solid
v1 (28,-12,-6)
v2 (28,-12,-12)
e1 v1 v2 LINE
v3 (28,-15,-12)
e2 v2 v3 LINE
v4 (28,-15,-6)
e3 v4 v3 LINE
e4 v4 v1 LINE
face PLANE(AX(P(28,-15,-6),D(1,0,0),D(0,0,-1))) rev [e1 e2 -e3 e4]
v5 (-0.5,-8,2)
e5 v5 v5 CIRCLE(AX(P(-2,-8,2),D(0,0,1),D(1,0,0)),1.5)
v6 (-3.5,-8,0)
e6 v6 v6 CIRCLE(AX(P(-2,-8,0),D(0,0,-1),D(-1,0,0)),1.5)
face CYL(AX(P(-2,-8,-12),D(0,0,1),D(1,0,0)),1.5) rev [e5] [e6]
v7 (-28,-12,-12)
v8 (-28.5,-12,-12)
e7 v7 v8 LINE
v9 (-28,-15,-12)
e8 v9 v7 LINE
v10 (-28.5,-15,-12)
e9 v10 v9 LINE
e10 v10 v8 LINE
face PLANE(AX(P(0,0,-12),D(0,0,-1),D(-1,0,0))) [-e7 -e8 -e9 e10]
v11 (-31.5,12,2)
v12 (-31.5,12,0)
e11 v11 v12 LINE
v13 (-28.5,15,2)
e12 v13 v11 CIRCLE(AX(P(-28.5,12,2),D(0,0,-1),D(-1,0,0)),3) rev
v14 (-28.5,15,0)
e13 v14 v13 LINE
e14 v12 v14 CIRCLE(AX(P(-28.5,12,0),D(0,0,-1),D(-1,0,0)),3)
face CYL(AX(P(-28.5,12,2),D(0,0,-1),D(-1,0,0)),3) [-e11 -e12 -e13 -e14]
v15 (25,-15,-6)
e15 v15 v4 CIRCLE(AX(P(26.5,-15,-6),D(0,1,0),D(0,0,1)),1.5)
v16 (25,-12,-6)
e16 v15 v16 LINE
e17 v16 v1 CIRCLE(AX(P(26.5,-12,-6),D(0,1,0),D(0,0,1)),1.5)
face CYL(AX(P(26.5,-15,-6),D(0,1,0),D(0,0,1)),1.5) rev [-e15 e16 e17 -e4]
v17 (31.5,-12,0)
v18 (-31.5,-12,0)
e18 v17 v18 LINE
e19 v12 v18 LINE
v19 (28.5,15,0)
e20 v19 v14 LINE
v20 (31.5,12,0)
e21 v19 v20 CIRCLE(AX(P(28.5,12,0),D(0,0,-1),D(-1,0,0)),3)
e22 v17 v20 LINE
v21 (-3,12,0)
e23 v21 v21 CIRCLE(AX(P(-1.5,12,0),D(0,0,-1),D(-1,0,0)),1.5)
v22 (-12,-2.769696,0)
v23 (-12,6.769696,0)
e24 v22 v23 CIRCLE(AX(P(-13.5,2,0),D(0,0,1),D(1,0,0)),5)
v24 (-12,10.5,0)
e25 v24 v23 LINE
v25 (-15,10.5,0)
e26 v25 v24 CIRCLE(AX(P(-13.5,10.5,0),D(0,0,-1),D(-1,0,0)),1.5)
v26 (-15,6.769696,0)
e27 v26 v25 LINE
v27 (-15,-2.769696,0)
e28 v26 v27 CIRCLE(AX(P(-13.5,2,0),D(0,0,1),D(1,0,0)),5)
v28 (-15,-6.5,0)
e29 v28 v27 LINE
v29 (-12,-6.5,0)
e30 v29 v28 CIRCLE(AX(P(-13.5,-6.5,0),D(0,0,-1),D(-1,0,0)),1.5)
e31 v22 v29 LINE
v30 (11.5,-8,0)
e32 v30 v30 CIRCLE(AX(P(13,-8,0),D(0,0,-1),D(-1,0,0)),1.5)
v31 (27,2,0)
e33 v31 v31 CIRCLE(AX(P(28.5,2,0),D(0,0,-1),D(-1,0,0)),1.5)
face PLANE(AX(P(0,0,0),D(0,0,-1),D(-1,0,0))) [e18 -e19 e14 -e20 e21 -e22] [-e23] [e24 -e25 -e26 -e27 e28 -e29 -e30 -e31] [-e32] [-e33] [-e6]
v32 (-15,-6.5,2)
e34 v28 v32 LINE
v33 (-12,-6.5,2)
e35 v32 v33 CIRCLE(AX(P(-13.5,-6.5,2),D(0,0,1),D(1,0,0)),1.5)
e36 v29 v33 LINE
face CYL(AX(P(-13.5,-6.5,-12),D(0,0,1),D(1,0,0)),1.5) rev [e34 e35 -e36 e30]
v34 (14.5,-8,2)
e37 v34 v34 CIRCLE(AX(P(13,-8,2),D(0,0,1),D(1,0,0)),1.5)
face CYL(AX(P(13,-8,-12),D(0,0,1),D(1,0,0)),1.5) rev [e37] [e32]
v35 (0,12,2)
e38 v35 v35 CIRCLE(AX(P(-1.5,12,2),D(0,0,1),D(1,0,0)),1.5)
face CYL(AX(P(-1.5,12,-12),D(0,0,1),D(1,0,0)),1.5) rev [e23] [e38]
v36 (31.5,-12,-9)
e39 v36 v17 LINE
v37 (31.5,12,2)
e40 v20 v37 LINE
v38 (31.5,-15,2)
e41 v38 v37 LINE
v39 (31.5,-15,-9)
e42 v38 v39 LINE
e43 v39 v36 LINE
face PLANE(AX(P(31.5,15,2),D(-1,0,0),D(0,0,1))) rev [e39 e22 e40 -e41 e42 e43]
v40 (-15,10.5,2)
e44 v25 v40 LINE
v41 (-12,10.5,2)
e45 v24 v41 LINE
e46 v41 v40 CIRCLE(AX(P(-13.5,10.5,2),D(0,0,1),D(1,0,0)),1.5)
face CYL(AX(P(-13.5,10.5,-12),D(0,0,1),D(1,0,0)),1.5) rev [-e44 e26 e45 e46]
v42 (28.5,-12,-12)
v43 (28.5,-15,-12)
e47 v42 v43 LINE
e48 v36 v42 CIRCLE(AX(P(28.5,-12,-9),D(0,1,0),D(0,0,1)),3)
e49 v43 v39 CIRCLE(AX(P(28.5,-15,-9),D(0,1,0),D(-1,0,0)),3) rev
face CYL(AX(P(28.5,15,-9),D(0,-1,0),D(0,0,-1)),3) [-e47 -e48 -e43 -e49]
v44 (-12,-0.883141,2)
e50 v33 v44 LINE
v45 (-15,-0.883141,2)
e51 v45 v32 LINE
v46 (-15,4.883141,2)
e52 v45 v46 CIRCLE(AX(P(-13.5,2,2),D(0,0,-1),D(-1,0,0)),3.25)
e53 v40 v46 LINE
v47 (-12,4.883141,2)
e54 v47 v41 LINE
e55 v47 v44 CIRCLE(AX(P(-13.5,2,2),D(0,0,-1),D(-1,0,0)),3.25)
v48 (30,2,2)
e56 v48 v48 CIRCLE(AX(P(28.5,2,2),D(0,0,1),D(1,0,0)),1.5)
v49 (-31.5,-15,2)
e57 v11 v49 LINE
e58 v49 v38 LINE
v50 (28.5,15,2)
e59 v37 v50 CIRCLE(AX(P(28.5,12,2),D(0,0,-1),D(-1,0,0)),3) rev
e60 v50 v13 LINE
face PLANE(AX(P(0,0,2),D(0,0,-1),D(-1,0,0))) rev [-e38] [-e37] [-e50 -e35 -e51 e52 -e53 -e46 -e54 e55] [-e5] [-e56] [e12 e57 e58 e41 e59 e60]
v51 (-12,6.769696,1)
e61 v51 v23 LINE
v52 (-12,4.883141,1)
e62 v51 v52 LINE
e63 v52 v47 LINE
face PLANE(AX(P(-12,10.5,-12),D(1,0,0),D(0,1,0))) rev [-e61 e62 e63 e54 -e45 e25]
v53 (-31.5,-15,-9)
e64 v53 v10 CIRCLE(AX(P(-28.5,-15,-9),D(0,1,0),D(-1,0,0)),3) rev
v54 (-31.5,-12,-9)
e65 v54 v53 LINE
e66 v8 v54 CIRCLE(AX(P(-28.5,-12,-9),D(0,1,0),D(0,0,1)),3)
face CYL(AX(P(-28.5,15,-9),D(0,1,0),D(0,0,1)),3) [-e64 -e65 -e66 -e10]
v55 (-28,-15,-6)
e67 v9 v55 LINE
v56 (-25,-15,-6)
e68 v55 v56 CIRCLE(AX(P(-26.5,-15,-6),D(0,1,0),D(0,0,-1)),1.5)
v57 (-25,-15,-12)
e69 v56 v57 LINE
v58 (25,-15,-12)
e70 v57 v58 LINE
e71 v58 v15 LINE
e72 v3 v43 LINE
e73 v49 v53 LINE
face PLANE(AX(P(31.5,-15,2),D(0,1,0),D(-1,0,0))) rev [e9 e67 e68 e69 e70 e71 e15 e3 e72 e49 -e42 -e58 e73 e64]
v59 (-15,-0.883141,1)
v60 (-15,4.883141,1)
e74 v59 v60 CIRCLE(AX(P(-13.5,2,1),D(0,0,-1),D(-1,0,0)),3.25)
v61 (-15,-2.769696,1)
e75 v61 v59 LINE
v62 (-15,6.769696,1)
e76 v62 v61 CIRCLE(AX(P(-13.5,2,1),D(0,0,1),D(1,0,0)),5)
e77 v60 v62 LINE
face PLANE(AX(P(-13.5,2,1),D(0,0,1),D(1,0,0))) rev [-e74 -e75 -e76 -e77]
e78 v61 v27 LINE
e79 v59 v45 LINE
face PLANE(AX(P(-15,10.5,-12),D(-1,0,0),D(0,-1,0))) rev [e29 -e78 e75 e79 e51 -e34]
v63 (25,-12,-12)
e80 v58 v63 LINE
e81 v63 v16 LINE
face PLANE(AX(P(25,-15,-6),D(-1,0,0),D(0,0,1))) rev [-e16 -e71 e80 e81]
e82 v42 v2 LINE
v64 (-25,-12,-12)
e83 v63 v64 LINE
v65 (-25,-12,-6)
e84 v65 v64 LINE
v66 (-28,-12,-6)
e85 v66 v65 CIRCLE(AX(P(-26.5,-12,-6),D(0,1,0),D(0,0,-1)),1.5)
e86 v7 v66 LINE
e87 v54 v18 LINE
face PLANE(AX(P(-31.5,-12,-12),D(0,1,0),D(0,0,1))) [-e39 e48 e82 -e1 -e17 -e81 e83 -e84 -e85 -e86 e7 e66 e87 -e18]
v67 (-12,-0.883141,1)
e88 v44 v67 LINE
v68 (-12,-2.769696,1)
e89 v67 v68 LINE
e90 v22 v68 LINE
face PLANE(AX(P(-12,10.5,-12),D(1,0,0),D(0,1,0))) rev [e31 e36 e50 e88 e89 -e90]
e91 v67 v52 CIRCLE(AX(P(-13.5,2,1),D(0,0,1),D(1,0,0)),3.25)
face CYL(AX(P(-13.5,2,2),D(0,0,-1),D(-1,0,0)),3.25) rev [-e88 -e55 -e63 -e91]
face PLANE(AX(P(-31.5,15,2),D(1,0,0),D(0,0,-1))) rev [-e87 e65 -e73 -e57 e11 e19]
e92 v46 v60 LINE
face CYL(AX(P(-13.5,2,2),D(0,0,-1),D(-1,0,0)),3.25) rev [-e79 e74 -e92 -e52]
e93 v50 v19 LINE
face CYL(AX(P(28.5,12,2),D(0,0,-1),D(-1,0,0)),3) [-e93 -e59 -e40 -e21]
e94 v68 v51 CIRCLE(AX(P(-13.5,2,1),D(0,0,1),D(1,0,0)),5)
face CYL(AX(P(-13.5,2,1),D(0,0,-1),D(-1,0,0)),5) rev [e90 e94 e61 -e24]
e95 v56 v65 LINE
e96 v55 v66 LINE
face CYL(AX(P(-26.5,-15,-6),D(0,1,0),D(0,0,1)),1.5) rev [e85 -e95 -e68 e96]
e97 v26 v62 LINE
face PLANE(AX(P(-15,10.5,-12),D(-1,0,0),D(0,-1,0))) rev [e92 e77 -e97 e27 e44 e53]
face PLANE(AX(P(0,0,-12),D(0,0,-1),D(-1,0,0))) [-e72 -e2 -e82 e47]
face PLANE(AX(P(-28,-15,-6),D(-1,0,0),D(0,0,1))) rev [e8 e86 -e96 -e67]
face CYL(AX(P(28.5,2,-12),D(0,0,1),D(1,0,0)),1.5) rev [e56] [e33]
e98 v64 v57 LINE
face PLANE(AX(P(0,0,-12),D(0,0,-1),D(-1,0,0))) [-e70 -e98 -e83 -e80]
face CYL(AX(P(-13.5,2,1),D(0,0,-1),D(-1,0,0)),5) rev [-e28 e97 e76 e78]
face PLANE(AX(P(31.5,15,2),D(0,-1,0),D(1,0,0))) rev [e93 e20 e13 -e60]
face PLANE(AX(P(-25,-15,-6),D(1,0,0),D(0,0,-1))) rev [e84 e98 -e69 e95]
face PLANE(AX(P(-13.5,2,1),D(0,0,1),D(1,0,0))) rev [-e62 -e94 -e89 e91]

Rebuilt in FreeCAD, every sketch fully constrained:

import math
import FreeCAD as App
import Part
import Sketcher

V = App.Vector
Q = App.Units.Quantity


def edges_at(feature, points):
    """Names of the edges that pass closest to the given points."""
    edges = feature.Shape.Edges
    near = lambda p: min(range(len(edges)), key=lambda i: edges[i].distToShape(Part.Vertex(*p))[0])
    return sorted({f"Edge{near(p) + 1}" for p in points})

doc = App.newDocument("Part")
body = doc.addObject("PartDesign::Body", "Body")

sketch1 = body.newObject("Sketcher::SketchObject", "Sketch")
sketch1.AttachmentSupport = (doc.getObject("XY_Plane"), [""])
sketch1.MapMode = "FlatFace"
sketch1.addGeometry([
    Part.LineSegment(V(-32, 15, 0), V(-32, -15, 0)),
    Part.LineSegment(V(-32, -15, 0), V(32, -15, 0)),
    Part.LineSegment(V(32, -15, 0), V(32, 15, 0)),
    Part.LineSegment(V(32, 15, 0), V(-32, 15, 0)),
], False)
sketch1.addConstraint([
    Sketcher.Constraint("Coincident", 0, 2, 1, 1),
    Sketcher.Constraint("Coincident", 1, 2, 2, 1),
    Sketcher.Constraint("Coincident", 2, 2, 3, 1),
    Sketcher.Constraint("Coincident", 3, 2, 0, 1),
    Sketcher.Constraint("Vertical", 0),
    Sketcher.Constraint("Horizontal", 1),
    Sketcher.Constraint("Vertical", 2),
    Sketcher.Constraint("Horizontal", 3),
    Sketcher.Constraint("Symmetric", 0, 2, 2, 2, -1, 1),
    Sketcher.Constraint("DistanceX", 1, 1, 1, 2, Q("63 mm")),
    Sketcher.Constraint("DistanceY", 0, 2, 0, 1, Q("30 mm")),
])
pad1 = body.newObject("PartDesign::Pad", "Pad")
pad1.Profile = sketch1
pad1.Length = 2

sketch2 = body.newObject("Sketcher::SketchObject", "Sketch001")
sketch2.AttachmentSupport = (doc.getObject("XY_Plane"), [""])
sketch2.MapMode = "FlatFace"
sketch2.addGeometry([
    Part.LineSegment(V(-31.5, -12, 0), V(-31.5, -15, 0)),
    Part.LineSegment(V(-31.5, -15, 0), V(31.5, -15, 0)),
    Part.LineSegment(V(31.5, -15, 0), V(31.5, -12, 0)),
    Part.LineSegment(V(31.5, -12, 0), V(-31.5, -12, 0)),
], False)
sketch2.addConstraint([
    Sketcher.Constraint("Coincident", 0, 2, 1, 1),
    Sketcher.Constraint("Coincident", 1, 2, 2, 1),
    Sketcher.Constraint("Coincident", 2, 2, 3, 1),
    Sketcher.Constraint("Coincident", 3, 2, 0, 1),
    Sketcher.Constraint("Vertical", 0),
    Sketcher.Constraint("Horizontal", 1),
    Sketcher.Constraint("Vertical", 2),
    Sketcher.Constraint("Horizontal", 3),
    Sketcher.Constraint("DistanceX", 1, 1, 1, 2, Q("63 mm")),
    Sketcher.Constraint("DistanceY", 0, 2, 0, 1, Q("3 mm")),
    Sketcher.Constraint("DistanceY", 0, 2, -1, 1, Q("15 mm")),
    Sketcher.Constraint("DistanceX", 0, 2, -1, 1, Q("31.5 mm")),
])
pad2 = body.newObject("PartDesign::Pad", "Pad001")
pad2.Profile = sketch2
pad2.Length = 12
pad2.Reversed = True

sketch3 = body.newObject("Sketcher::SketchObject", "Sketch002")
sketch3.AttachmentSupport = (doc.getObject("XZ_Plane"), [""])
sketch3.MapMode = "FlatFace"
sketch3.AttachmentOffset = App.Placement(V(0, 0, 12), App.Rotation())
sketch3.addGeometry([
    Part.LineSegment(V(25, -18, 0), V(25, -6, 0)),
    Part.ArcOfCircle(Part.Circle(V(26.5, -6, 0), V(0, 0, 1), 1.5), math.radians(0), math.radians(180)),
    Part.LineSegment(V(28, -6, 0), V(28, -18, 0)),
    Part.ArcOfCircle(Part.Circle(V(26.5, -18, 0), V(0, 0, 1), 1.5), math.radians(180), math.radians(360)),
    Part.LineSegment(V(-25, -6, 0), V(-25, -18, 0)),
    Part.ArcOfCircle(Part.Circle(V(-26.5, -18, 0), V(0, 0, 1), 1.5), math.radians(180), math.radians(360)),
    Part.LineSegment(V(-28, -18, 0), V(-28, -6, 0)),
    Part.ArcOfCircle(Part.Circle(V(-26.5, -6, 0), V(0, 0, 1), 1.5), math.radians(0), math.radians(180)),
], False)
sketch3.addConstraint([
    Sketcher.Constraint("Tangent", 0, 2, 1, 2),
    Sketcher.Constraint("Tangent", 1, 1, 2, 1),
    Sketcher.Constraint("Tangent", 2, 2, 3, 2),
    Sketcher.Constraint("Tangent", 3, 1, 0, 1),
    Sketcher.Constraint("Tangent", 4, 2, 5, 2),
    Sketcher.Constraint("Tangent", 5, 1, 6, 1),
    Sketcher.Constraint("Tangent", 6, 2, 7, 2),
    Sketcher.Constraint("Tangent", 7, 1, 4, 1),
    Sketcher.Constraint("Vertical", 0),
    Sketcher.Constraint("Vertical", 2),
    Sketcher.Constraint("Vertical", 4),
    Sketcher.Constraint("Vertical", 6),
    Sketcher.Constraint("Equal", 3, 5),
    Sketcher.Constraint("Symmetric", 3, 3, 5, 3, -2),
    Sketcher.Constraint("Horizontal", 1, 3, 7, 3),
    Sketcher.Constraint("Radius", 1, Q("1.5 mm")),
    Sketcher.Constraint("DistanceY", 0, 1, 0, 2, Q("12 mm")),
    Sketcher.Constraint("DistanceY", 1, 3, -1, 1, Q("6 mm")),
    Sketcher.Constraint("DistanceX", -1, 1, 0, 2, Q("25 mm")),
])
pocket1 = body.newObject("PartDesign::Pocket", "Pocket")
pocket1.Profile = sketch3
pocket1.Type = "ThroughAll"
pocket1.Reversed = True
doc.recompute()

fillet = body.newObject("PartDesign::Fillet", "Fillet")
fillet.Base = (pocket1, edges_at(pocket1, [
    (-31.5, -13.5, -12),
    (31.5, -13.5, -12),
    (-31.5, 15, 1),
    (31.5, 15, 1),
]))
fillet.Radius = 3

sketch4 = body.newObject("Sketcher::SketchObject", "Sketch003")
sketch4.AttachmentSupport = (doc.getObject("XY_Plane"), [""])
sketch4.MapMode = "FlatFace"
sketch4.AttachmentOffset = App.Placement(V(0, 0, 2), App.Rotation())
sketch4.addGeometry([
    Part.LineSegment(V(-12, -6.5, 0), V(-12, 10.5, 0)),
    Part.ArcOfCircle(Part.Circle(V(-13.5, 10.5, 0), V(0, 0, 1), 1.5), math.radians(0), math.radians(180)),
    Part.LineSegment(V(-15, 10.5, 0), V(-15, -6.5, 0)),
    Part.ArcOfCircle(Part.Circle(V(-13.5, -6.5, 0), V(0, 0, 1), 1.5), math.radians(180), math.radians(360)),
], False)
sketch4.addConstraint([
    Sketcher.Constraint("Tangent", 0, 2, 1, 1),
    Sketcher.Constraint("Tangent", 1, 2, 2, 1),
    Sketcher.Constraint("Tangent", 2, 2, 3, 1),
    Sketcher.Constraint("Tangent", 3, 2, 0, 1),
    Sketcher.Constraint("Vertical", 0),
    Sketcher.Constraint("Vertical", 2),
    Sketcher.Constraint("Radius", 1, Q("1.5 mm")),
    Sketcher.Constraint("DistanceY", 0, 1, 0, 2, Q("17 mm")),
    Sketcher.Constraint("DistanceX", 0, 2, -1, 1, Q("12 mm")),
    Sketcher.Constraint("DistanceY", -1, 1, 1, 3, Q("10.5 mm")),
])
pocket2 = body.newObject("PartDesign::Pocket", "Pocket001")
pocket2.Profile = sketch4
pocket2.Type = "ThroughAll"

sketch5 = body.newObject("Sketcher::SketchObject", "Sketch004")
sketch5.AttachmentSupport = (doc.getObject("XY_Plane"), [""])
sketch5.MapMode = "FlatFace"
sketch5.addGeometry(Part.Circle(V(-14, 2, 0), V(0, 0, 1), 5), False)
sketch5.addConstraint([
    Sketcher.Constraint("Diameter", 0, Q("10 mm")),
    Sketcher.Constraint("DistanceY", -1, 1, 0, 3, Q("2 mm")),
    Sketcher.Constraint("DistanceX", 0, 3, -1, 1, Q("13.5 mm")),
])
pocket3 = body.newObject("PartDesign::Pocket", "Pocket002")
pocket3.Profile = sketch5
pocket3.Length = 1
pocket3.Reversed = True

sketch6 = body.newObject("Sketcher::SketchObject", "Sketch005")
sketch6.AttachmentSupport = (doc.getObject("XY_Plane"), [""])
sketch6.MapMode = "FlatFace"
sketch6.AttachmentOffset = App.Placement(V(0, 0, 1), App.Rotation())
sketch6.addGeometry(Part.Circle(V(-13.5, 2, 0), V(0, 0, 1), 3.2), False)
sketch6.addConstraint([
    Sketcher.Constraint("Diameter", 0, Q("6.5 mm")),
    Sketcher.Constraint("DistanceY", -1, 1, 0, 3, Q("2 mm")),
    Sketcher.Constraint("DistanceX", 0, 3, -1, 1, Q("13.5 mm")),
])
pocket4 = body.newObject("PartDesign::Pocket", "Pocket003")
pocket4.Profile = sketch6
pocket4.Type = "ThroughAll"
pocket4.Reversed = True

sketch7 = body.newObject("Sketcher::SketchObject", "Sketch006")
sketch7.AttachmentSupport = (doc.getObject("XY_Plane"), [""])
sketch7.MapMode = "FlatFace"
sketch7.AttachmentOffset = App.Placement(V(0, 0, 2), App.Rotation())
sketch7.addGeometry([
    Part.Circle(V(28.5, 2, 0), V(0, 0, 1), 1.5),
    Part.Circle(V(-1.5, 12, 0), V(0, 0, 1), 1.5),
    Part.Circle(V(-2, -8, 0), V(0, 0, 1), 1.5),
    Part.Circle(V(13, -8, 0), V(0, 0, 1), 1.5),
], False)
sketch7.addConstraint([
    Sketcher.Constraint("Equal", 0, 1),
    Sketcher.Constraint("Equal", 1, 2),
    Sketcher.Constraint("Equal", 2, 3),
    Sketcher.Constraint("Horizontal", 2, 3, 3, 3),
    Sketcher.Constraint("Diameter", 0, Q("3 mm")),
    Sketcher.Constraint("DistanceY", -1, 1, 0, 3, Q("2 mm")),
    Sketcher.Constraint("DistanceY", -1, 1, 1, 3, Q("12 mm")),
    Sketcher.Constraint("DistanceX", 2, 3, -1, 1, Q("2 mm")),
    Sketcher.Constraint("DistanceY", 2, 3, -1, 1, Q("8 mm")),
    Sketcher.Constraint("DistanceX", -1, 1, 3, 3, Q("13 mm")),
    Sketcher.Constraint("DistanceX", 1, 3, 0, 3, Q("30 mm")),
    Sketcher.Constraint("DistanceX", -1, 1, 0, 3, Q("28.5 mm")),
])
pocket5 = body.newObject("PartDesign::Pocket", "Pocket004")
pocket5.Profile = sketch7
pocket5.Type = "ThroughAll"

doc.recompute()
